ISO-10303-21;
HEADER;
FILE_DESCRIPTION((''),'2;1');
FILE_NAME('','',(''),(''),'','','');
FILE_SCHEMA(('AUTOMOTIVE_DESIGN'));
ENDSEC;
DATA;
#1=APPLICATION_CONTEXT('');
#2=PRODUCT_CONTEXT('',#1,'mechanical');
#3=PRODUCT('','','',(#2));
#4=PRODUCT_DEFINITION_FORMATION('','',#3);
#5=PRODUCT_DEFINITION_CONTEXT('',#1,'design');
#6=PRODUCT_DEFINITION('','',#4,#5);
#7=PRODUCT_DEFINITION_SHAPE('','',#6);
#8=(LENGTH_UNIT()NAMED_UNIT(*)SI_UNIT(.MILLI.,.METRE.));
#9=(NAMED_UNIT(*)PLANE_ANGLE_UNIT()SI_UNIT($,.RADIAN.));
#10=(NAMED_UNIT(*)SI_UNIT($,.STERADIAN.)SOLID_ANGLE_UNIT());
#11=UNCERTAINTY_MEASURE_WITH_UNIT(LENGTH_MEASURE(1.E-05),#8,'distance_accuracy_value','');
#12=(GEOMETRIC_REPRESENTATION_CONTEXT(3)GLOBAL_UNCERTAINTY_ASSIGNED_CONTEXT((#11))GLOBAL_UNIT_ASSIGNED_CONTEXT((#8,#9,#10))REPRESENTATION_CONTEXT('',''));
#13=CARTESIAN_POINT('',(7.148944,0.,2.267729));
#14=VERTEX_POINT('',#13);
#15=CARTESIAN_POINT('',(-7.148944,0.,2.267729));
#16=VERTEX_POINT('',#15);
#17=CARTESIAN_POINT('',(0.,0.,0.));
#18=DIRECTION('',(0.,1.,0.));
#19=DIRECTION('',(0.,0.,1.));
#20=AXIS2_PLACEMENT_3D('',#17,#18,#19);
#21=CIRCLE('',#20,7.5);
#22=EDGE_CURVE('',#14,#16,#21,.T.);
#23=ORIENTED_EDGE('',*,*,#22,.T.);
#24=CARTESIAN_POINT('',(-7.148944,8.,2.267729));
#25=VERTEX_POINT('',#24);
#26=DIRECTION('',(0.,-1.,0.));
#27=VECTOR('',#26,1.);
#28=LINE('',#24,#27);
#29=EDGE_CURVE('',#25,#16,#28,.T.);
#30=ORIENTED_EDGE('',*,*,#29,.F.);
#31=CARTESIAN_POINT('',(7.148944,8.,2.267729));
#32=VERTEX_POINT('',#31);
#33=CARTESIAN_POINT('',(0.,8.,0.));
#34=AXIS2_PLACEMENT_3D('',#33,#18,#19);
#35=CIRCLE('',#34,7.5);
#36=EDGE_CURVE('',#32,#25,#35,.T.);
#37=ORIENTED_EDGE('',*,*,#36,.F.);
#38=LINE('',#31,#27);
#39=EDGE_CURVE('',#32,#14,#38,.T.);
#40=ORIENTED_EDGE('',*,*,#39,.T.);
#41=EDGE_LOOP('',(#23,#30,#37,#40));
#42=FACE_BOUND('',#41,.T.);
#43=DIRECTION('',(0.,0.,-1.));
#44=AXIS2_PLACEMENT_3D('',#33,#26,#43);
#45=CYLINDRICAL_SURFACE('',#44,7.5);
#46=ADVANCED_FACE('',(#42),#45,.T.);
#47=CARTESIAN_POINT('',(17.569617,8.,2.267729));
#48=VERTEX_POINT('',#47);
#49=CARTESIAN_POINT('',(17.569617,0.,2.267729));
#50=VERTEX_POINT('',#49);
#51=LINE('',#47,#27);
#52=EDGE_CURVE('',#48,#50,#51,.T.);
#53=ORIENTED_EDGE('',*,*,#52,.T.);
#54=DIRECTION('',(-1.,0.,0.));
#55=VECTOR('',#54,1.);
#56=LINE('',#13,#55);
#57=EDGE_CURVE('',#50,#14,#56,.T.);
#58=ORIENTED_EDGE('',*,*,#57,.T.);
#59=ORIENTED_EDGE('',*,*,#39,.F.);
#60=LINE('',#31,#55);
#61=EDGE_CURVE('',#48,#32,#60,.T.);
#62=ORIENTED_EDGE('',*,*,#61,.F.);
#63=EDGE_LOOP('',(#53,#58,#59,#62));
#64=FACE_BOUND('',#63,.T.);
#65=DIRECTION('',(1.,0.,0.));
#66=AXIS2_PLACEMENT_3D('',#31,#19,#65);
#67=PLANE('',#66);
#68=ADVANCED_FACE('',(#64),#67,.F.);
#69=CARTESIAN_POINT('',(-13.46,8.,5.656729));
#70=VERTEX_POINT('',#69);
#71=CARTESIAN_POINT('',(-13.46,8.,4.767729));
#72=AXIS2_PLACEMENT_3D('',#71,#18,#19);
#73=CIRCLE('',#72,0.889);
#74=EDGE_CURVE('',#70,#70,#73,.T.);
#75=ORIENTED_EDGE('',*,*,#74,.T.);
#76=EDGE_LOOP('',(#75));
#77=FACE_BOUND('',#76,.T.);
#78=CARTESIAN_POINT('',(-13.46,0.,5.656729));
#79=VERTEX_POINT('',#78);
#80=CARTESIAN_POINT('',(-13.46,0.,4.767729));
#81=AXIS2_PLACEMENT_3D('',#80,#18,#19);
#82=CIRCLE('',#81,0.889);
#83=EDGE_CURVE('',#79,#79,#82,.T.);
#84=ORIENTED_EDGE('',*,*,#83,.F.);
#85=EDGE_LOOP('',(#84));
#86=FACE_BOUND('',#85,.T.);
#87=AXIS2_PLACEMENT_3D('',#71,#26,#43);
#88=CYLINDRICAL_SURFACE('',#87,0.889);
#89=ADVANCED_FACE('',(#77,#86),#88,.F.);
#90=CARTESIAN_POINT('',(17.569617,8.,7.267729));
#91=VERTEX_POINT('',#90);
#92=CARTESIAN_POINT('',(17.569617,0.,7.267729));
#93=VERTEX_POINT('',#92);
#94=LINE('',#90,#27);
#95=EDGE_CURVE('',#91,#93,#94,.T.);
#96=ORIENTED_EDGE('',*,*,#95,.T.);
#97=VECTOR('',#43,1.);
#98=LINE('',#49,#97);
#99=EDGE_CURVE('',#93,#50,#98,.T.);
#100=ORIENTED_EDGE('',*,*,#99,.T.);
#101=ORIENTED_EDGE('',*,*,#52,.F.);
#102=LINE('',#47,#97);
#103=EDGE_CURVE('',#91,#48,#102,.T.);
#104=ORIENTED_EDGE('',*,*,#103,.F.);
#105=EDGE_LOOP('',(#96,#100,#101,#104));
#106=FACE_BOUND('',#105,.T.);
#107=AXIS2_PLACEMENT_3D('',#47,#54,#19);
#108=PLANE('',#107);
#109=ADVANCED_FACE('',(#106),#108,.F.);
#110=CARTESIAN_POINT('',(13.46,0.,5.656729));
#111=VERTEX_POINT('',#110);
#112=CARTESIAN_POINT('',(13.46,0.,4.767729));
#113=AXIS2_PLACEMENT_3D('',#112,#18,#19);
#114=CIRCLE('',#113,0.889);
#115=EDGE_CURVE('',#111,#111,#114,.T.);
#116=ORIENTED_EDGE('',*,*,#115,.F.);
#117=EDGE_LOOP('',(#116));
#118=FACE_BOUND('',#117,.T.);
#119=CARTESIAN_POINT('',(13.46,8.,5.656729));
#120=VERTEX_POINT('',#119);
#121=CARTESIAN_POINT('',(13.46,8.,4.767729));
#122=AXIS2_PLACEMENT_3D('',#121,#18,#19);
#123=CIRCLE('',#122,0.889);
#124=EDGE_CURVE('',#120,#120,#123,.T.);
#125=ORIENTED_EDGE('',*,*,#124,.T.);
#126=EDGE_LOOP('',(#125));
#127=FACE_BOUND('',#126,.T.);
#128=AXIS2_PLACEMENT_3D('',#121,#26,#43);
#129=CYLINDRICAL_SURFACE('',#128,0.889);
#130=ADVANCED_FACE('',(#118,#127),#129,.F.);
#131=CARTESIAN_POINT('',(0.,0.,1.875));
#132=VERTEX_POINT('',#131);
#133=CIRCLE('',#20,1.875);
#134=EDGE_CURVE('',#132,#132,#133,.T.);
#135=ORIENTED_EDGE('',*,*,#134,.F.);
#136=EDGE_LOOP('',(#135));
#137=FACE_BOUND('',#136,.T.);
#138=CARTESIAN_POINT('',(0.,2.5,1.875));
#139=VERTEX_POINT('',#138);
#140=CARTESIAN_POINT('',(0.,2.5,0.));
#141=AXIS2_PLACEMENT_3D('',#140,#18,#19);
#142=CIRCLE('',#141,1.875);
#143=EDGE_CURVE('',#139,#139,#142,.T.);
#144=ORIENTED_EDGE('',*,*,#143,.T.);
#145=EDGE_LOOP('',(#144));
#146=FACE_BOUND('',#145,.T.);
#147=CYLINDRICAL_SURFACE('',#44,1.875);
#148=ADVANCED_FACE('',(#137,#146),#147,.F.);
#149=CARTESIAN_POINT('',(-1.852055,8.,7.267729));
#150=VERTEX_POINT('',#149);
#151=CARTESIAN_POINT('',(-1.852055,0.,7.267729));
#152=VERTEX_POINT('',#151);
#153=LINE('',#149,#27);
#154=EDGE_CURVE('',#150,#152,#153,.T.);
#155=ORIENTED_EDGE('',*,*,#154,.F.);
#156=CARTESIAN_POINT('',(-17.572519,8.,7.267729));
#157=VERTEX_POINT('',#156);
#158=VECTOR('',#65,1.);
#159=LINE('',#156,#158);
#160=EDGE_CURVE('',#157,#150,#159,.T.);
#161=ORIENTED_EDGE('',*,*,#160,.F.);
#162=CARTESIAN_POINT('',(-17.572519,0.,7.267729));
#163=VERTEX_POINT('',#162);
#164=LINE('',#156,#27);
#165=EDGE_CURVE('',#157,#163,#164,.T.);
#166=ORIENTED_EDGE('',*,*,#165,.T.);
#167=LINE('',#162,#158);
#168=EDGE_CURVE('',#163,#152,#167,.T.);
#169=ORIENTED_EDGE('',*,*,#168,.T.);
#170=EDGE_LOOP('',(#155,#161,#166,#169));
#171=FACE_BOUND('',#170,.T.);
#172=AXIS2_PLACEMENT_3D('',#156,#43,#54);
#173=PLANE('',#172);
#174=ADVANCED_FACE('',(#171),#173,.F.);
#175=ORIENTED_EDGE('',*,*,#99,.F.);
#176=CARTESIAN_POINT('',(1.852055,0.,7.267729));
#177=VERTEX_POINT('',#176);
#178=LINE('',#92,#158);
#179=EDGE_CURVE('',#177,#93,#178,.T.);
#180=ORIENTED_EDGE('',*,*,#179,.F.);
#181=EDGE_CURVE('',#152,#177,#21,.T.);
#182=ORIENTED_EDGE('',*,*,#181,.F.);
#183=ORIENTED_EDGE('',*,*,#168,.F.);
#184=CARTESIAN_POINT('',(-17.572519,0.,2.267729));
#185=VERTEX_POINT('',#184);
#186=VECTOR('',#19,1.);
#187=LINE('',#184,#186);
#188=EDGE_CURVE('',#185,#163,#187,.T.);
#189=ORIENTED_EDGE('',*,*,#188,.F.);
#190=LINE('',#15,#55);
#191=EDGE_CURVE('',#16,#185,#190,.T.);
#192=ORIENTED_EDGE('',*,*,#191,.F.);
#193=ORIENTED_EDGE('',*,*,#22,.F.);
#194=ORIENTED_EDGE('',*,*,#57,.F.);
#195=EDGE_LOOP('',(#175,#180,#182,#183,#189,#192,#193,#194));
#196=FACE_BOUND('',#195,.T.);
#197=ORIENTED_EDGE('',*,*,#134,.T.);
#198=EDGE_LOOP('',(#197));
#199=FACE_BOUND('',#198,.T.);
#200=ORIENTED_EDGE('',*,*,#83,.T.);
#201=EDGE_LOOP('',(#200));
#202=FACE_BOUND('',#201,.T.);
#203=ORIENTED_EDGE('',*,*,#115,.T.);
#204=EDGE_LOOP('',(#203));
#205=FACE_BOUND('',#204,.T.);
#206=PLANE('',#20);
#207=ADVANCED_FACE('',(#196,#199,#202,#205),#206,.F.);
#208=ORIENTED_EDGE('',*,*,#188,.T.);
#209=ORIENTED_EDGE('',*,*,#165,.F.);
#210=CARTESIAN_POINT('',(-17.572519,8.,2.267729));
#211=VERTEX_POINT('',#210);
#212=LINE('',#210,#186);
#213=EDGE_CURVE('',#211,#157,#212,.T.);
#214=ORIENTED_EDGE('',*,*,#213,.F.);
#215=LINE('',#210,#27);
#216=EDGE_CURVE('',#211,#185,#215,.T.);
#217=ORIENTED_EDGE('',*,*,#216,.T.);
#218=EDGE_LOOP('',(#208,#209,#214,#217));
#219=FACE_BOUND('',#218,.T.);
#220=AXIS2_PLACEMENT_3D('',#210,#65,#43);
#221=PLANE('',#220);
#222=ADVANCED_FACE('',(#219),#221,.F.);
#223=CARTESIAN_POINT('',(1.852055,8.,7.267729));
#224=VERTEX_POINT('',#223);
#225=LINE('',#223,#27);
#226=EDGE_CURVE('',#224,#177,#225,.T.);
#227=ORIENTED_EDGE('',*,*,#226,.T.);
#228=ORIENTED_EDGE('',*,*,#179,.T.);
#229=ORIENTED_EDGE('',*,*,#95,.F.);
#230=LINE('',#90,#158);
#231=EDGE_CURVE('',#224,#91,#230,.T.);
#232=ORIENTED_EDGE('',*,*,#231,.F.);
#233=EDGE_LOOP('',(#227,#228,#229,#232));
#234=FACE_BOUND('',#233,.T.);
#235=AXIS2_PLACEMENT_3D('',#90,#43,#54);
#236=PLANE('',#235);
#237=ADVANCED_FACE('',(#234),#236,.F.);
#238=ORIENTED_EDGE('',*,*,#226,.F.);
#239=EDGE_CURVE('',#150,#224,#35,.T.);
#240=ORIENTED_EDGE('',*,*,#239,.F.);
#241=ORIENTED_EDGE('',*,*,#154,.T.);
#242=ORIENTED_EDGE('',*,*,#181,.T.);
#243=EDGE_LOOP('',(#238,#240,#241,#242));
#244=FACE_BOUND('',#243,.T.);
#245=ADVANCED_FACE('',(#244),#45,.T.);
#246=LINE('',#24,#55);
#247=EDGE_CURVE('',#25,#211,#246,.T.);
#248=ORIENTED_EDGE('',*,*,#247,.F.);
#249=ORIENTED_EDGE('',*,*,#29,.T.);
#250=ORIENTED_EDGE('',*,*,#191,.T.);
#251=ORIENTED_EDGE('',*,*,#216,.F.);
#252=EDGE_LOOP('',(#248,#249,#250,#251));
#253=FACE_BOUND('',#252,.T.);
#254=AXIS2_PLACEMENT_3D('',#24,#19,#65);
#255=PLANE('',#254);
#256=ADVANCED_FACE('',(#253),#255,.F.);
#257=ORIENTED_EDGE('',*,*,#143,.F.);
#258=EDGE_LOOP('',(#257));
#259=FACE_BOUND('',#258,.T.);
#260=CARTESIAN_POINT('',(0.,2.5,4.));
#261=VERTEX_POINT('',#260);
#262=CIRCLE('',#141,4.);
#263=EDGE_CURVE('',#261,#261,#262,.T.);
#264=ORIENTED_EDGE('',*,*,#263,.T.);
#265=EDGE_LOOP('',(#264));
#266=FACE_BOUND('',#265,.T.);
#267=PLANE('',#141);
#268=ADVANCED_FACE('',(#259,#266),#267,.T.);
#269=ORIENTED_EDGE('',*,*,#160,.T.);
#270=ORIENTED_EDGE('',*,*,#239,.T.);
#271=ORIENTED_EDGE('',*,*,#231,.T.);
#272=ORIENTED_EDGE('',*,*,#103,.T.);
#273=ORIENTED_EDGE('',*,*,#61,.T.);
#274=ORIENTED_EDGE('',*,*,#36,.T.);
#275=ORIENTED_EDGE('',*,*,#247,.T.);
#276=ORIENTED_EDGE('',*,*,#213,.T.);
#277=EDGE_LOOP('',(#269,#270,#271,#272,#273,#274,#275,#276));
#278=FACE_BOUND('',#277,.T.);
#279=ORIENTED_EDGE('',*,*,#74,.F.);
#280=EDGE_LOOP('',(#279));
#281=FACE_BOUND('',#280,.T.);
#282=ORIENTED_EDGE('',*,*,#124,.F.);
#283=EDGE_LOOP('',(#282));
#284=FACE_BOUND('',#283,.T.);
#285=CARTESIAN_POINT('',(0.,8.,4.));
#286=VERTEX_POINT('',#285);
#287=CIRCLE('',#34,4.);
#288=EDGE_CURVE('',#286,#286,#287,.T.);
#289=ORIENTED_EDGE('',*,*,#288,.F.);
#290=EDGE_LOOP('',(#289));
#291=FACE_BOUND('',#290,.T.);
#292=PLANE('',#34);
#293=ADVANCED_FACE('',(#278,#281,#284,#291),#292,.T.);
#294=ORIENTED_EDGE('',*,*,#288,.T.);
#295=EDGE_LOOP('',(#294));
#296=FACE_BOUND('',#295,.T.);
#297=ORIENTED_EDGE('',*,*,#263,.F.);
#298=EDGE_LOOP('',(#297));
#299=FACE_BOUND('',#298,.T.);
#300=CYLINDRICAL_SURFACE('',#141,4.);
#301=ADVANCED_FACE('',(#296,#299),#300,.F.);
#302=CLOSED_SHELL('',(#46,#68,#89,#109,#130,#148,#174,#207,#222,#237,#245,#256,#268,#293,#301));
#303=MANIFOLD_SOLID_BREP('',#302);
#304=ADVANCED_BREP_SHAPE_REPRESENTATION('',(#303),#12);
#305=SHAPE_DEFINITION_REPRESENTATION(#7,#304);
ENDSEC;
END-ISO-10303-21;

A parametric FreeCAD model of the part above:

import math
import FreeCAD as App
import Part
import Sketcher

V = App.Vector

doc = App.newDocument("Part")
body = doc.addObject("PartDesign::Body", "Body")

# Sketch on XZ plane
sketch1 = body.newObject("Sketcher::SketchObject", "Sketch")
sketch1.AttachmentSupport = (doc.getObject("XZ_Plane"), [""])
sketch1.MapMode = "FlatFace"
sketch1.addGeometry([
    Part.LineSegment(V(-7.1, 2.3, 0), V(-17.6, 2.3, 0)),  # 0
    Part.LineSegment(V(-17.6, 2.3, 0), V(-17.6, 7.3, 0)),  # 1
    Part.LineSegment(V(-17.6, 7.3, 0), V(-1.9, 7.3, 0)),  # 2
    Part.ArcOfCircle(Part.Circle(V(0, 0, 0), V(0, 0, 1), 7.5), math.radians(76), math.radians(104)),  # 3
    Part.LineSegment(V(1.9, 7.3, 0), V(17.6, 7.3, 0)),  # 4
    Part.LineSegment(V(17.6, 7.3, 0), V(17.6, 2.3, 0)),  # 5
    Part.LineSegment(V(17.6, 2.3, 0), V(7.1, 2.3, 0)),  # 6
    Part.ArcOfCircle(Part.Circle(V(0, 0, 0), V(0, 0, 1), 7.5), math.radians(162), math.radians(378)),  # 7
    Part.Circle(V(-13.5, 4.8, 0), V(0, 0, 1), 0.9),  # 8
    Part.Circle(V(13.5, 4.8, 0), V(0, 0, 1), 0.9),  # 9
    Part.Circle(V(0, 0, 0), V(0, 0, 1), 1.9),  # 10
], False)
sketch1.addConstraint([
    Sketcher.Constraint("Coincident", 0, 2, 1, 1),
    Sketcher.Constraint("Coincident", 1, 2, 2, 1),
    Sketcher.Constraint("Coincident", 2, 2, 3, 2),
    Sketcher.Constraint("Coincident", 3, 1, 4, 1),
    Sketcher.Constraint("Coincident", 4, 2, 5, 1),
    Sketcher.Constraint("Coincident", 5, 2, 6, 1),
    Sketcher.Constraint("Coincident", 6, 2, 7, 2),
    Sketcher.Constraint("Coincident", 7, 1, 0, 1),
    Sketcher.Constraint("Horizontal", 0),
    Sketcher.Constraint("Vertical", 1),
    Sketcher.Constraint("Horizontal", 2),
    Sketcher.Constraint("Horizontal", 4),
    Sketcher.Constraint("Vertical", 5),
    Sketcher.Constraint("Horizontal", 6),
    Sketcher.Constraint("Coincident", 3, 3, -1, 1),
    Sketcher.Constraint("Coincident", 7, 3, -1, 1),
    Sketcher.Constraint("Coincident", 10, 3, -1, 1),
    Sketcher.Constraint("Equal", 3, 7),
    Sketcher.Constraint("Equal", 8, 9),
    Sketcher.Constraint("Symmetric", 8, 3, 9, 3, -2),
    Sketcher.Constraint("Horizontal", 2, 2, 3, 1),
    Sketcher.Constraint("Horizontal", 0, 2, 5, 2),
    Sketcher.Constraint("Radius", 3, 7.5),
    Sketcher.Constraint("Diameter", 10, 3.75),
    Sketcher.Constraint("DistanceY", 1, 1, 1, 2, 5.0),
    Sketcher.Constraint("Diameter", 8, 1.778),
    Sketcher.Constraint("DistanceY", 0, 2, 8, 3, 2.5),
    Sketcher.Constraint("DistanceX", 8, 3, -1, 1, 13.46),
    Sketcher.Constraint("DistanceX", 4, 1, 4, 2, 15.717562),
    Sketcher.Constraint("DistanceX", 0, 2, 0, 1, 10.423574),
    Sketcher.Constraint("DistanceX", 2, 1, 2, 2, 15.720463),
])
pad1 = body.newObject("PartDesign::Pad", "Pad")
pad1.Profile = sketch1
pad1.Length = 8
pad1.Reversed = True

# Sketch on XZ plane
sketch2 = body.newObject("Sketcher::SketchObject", "Sketch001")
sketch2.AttachmentSupport = (doc.getObject("XZ_Plane"), [""])
sketch2.MapMode = "FlatFace"
sketch2.AttachmentOffset = App.Placement(V(0, 0, -8), App.Rotation())
sketch2.addGeometry(Part.Circle(V(0, 0, 0), V(0, 0, 1), 4), False)
sketch2.addConstraint([
    Sketcher.Constraint("Coincident", 0, 3, -1, 1),
    Sketcher.Constraint("Diameter", 0, 8.0),
])
pocket1 = body.newObject("PartDesign::Pocket", "Pocket")
pocket1.Profile = sketch2
pocket1.Length = 5.5
pocket1.Reversed = True

doc.recompute()
